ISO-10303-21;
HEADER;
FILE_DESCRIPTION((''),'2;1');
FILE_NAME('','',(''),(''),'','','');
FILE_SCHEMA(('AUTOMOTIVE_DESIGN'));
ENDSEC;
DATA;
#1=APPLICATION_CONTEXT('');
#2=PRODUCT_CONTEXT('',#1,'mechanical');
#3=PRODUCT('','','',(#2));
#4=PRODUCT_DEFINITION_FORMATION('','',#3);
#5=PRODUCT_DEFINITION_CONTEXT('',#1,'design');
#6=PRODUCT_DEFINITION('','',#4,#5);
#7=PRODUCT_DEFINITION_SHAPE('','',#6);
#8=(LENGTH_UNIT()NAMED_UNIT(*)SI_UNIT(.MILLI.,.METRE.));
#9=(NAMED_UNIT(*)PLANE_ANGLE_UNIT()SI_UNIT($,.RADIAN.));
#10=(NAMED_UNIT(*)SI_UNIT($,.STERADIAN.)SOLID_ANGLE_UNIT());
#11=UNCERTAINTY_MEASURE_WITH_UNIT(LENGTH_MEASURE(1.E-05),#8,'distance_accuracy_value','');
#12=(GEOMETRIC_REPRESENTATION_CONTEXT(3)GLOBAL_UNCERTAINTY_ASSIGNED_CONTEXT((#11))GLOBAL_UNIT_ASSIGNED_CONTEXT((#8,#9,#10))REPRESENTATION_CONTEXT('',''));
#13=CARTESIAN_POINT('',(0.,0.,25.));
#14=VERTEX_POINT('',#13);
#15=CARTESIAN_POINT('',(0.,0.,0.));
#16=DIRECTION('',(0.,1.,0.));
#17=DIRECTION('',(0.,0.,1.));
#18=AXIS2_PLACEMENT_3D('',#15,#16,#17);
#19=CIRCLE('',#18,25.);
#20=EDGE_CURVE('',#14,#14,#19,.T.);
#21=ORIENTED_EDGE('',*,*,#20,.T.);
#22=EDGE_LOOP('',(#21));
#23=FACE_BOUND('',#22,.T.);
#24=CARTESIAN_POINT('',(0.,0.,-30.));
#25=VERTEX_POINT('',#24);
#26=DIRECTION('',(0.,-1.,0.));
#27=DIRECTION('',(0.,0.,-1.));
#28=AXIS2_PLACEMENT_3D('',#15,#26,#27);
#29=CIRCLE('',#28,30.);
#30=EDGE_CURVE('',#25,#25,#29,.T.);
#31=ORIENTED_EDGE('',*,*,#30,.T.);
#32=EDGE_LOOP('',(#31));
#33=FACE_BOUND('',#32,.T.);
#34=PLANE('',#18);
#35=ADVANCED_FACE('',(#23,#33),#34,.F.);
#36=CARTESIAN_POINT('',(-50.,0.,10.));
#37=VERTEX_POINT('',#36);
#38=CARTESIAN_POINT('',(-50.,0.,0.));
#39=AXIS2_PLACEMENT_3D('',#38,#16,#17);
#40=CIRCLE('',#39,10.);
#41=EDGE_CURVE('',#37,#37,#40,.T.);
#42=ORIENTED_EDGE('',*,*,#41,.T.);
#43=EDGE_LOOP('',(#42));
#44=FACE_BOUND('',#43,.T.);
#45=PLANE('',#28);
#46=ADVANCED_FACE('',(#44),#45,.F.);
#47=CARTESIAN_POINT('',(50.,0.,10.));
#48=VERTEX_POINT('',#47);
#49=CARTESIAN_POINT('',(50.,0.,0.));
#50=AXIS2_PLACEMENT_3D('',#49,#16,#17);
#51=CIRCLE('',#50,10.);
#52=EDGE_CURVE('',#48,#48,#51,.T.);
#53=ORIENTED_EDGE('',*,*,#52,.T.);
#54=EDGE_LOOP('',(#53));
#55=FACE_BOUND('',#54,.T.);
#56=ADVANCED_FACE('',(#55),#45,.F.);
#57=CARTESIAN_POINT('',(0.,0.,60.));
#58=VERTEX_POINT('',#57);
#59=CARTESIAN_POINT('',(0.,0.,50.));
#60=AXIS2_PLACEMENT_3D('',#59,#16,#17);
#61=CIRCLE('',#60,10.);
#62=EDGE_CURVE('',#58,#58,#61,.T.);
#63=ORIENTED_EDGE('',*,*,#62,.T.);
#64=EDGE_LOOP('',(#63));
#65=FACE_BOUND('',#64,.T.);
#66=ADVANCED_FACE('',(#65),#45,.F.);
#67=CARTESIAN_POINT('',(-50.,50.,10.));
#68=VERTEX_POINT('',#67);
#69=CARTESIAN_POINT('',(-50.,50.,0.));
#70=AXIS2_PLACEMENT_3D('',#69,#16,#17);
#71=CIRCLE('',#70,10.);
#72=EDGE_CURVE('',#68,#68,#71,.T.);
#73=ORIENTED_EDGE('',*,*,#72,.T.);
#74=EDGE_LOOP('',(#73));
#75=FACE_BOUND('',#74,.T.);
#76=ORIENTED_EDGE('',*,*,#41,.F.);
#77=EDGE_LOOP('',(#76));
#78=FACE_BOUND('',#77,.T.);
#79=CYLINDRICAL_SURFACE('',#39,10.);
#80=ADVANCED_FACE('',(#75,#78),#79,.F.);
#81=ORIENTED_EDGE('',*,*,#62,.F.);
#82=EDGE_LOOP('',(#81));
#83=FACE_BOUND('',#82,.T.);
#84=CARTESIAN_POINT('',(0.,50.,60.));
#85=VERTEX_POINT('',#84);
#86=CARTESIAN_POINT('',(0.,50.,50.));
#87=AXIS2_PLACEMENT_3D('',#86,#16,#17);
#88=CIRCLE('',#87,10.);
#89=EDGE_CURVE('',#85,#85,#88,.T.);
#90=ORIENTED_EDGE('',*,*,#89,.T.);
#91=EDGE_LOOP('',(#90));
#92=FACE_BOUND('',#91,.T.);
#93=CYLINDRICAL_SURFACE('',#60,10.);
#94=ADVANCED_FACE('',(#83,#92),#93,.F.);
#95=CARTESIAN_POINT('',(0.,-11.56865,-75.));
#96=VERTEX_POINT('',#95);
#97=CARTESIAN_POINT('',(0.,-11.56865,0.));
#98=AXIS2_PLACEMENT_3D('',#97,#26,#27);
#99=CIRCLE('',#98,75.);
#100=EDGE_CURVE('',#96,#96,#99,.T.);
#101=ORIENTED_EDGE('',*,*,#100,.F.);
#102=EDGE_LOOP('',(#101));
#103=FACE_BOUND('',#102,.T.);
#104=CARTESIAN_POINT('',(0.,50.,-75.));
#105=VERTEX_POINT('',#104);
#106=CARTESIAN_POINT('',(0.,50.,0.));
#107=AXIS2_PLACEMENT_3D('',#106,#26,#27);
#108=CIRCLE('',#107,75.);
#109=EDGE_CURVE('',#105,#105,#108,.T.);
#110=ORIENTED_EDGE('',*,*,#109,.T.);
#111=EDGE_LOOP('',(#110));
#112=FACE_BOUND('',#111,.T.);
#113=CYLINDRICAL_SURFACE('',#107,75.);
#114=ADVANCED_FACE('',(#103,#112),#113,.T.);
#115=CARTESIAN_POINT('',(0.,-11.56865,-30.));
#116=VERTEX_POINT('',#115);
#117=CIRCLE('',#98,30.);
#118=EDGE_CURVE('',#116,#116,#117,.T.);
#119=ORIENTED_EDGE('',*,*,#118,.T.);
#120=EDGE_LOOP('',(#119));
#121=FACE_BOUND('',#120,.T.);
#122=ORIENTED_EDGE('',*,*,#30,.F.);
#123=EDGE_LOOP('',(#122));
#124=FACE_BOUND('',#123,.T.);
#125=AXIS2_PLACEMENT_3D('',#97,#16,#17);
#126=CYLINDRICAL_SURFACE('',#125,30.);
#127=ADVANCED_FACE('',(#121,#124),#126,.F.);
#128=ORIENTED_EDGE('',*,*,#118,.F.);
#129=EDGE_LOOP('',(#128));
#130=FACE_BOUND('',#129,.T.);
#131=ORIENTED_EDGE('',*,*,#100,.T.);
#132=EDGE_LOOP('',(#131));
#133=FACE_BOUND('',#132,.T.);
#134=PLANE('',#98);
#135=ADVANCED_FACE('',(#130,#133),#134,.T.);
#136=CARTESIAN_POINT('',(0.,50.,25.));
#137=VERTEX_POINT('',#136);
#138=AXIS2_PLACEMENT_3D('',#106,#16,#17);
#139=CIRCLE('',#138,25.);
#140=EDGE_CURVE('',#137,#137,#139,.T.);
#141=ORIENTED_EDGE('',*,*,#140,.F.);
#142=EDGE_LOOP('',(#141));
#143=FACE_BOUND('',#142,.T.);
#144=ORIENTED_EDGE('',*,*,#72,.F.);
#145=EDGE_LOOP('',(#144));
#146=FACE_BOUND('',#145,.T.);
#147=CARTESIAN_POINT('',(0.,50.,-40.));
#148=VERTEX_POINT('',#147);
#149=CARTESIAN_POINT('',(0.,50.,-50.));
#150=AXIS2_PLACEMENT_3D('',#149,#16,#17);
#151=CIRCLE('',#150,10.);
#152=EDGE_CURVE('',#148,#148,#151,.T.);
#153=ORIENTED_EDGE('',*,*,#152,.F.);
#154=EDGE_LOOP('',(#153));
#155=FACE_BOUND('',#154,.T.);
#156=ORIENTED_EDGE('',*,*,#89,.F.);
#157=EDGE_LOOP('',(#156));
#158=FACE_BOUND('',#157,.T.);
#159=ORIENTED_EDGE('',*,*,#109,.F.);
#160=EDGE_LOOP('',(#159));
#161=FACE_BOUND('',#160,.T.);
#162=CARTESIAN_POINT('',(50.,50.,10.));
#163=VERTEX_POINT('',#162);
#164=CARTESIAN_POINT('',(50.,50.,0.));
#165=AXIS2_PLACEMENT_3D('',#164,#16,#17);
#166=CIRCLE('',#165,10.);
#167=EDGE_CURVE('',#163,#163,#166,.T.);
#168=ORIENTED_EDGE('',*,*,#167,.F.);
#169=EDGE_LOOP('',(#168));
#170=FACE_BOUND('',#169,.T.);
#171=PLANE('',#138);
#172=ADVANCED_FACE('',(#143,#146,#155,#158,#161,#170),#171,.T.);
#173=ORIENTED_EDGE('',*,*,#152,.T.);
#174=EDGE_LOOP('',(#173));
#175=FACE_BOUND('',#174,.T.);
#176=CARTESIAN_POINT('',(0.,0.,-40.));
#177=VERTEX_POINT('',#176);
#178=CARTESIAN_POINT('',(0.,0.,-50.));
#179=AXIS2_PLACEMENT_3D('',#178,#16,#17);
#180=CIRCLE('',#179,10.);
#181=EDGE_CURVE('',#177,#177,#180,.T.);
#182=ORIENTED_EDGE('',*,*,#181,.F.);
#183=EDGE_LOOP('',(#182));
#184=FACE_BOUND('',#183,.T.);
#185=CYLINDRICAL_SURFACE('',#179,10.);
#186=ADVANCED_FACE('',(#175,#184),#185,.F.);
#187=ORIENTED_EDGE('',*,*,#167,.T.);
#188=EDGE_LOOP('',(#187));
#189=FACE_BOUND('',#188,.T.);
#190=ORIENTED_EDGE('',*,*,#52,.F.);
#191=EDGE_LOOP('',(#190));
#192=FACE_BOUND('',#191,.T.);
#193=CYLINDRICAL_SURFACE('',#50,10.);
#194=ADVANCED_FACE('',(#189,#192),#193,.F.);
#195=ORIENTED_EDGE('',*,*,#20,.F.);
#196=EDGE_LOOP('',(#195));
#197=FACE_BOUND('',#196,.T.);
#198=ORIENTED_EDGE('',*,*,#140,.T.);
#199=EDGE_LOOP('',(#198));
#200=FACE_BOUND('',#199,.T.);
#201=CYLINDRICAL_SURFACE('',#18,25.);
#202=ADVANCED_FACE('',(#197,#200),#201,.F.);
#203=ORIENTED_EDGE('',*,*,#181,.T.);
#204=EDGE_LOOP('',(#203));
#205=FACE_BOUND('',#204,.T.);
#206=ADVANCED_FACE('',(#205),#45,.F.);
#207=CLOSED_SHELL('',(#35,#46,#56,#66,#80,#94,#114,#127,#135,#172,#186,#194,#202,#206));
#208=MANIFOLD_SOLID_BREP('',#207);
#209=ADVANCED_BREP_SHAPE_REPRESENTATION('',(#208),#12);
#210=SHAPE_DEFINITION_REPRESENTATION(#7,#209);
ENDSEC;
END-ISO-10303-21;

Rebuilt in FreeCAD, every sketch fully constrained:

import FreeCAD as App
import Part
import Sketcher

doc = App.newDocument("Part")
body = doc.addObject("PartDesign::Body", "Body")

sketch1 = doc.addObject("Sketcher::SketchObject", "Sketch")
body.addObject(sketch1)
sketch1.AttachmentSupport = (doc.XZ_Plane, [""])
sketch1.MapMode = "FlatFace"
sketch1.addGeometry(Part.Circle(App.Vector(0, 0, 0), App.Vector(0, 0, 1), 30), False)
sketch1.addConstraint([
    Sketcher.Constraint("Coincident", 0, 3, -1, 1),
    Sketcher.Constraint("Diameter", 0, 60.0),
])
pad1 = doc.addObject("PartDesign::Pad", "Pad")
body.addObject(pad1)
pad1.Profile = sketch1
pad1.Length = 50
pad1.Reversed = True

sketch2 = doc.addObject("Sketcher::SketchObject", "Sketch001")
body.addObject(sketch2)
sketch2.AttachmentSupport = (doc.XZ_Plane, [""])
sketch2.MapMode = "FlatFace"
sketch2.addGeometry(Part.Circle(App.Vector(0, 0, 0), App.Vector(0, 0, 1), 75), False)
sketch2.addConstraint([
    Sketcher.Constraint("Coincident", 0, 3, -1, 1),
    Sketcher.Constraint("Diameter", 0, 150.0),
])
pad2 = doc.addObject("PartDesign::Pad", "Pad001")
body.addObject(pad2)
pad2.Profile = sketch2
pad2.Length = 50
pad2.Reversed = True

sketch3 = doc.addObject("Sketcher::SketchObject", "Sketch002")
body.addObject(sketch3)
sketch3.AttachmentSupport = (doc.XZ_Plane, [""])
sketch3.MapMode = "FlatFace"
sketch3.AttachmentOffset = App.Placement(App.Vector(0, 0, -50), App.Rotation())
sketch3.addGeometry([
    Part.Circle(App.Vector(0, 0, 0), App.Vector(0, 0, 1), 25),
    Part.Circle(App.Vector(0, 50, 0), App.Vector(0, 0, 1), 10),
    Part.Circle(App.Vector(50, 0, 0), App.Vector(0, 0, 1), 10),
    Part.Circle(App.Vector(0, -50, 0), App.Vector(0, 0, 1), 10),
    Part.Circle(App.Vector(-50, 0, 0), App.Vector(0, 0, 1), 10),
], False)
sketch3.addConstraint([
    Sketcher.Constraint("Coincident", 0, 3, -1, 1),
    Sketcher.Constraint("Equal", 1, 2),
    Sketcher.Constraint("Equal", 2, 3),
    Sketcher.Constraint("Equal", 3, 4),
    Sketcher.Constraint("Symmetric", 1, 3, 3, 3, -1, 1),
    Sketcher.Constraint("Symmetric", 2, 3, 4, 3, -1, 1),
    Sketcher.Constraint("PointOnObject", 1, 3, -2),
    Sketcher.Constraint("PointOnObject", 2, 3, -1),
    Sketcher.Constraint("Diameter", 0, 50.0),
    Sketcher.Constraint("Diameter", 1, 20.0),
    Sketcher.Constraint("DistanceY", -1, 1, 1, 3, 50.0),
    Sketcher.Constraint("DistanceX", -1, 1, 2, 3, 50.0),
])
pocket1 = doc.addObject("PartDesign::Pocket", "Pocket")
body.addObject(pocket1)
pocket1.Profile = sketch3
pocket1.Length = 50
pocket1.Reversed = True

sketch4 = doc.addObject("Sketcher::SketchObject", "Sketch003")
body.addObject(sketch4)
sketch4.AttachmentSupport = (doc.XZ_Plane, [""])
sketch4.MapMode = "FlatFace"
sketch4.AttachmentOffset = App.Placement(App.Vector(0, 0, 11.56865), App.Rotation())
sketch4.addGeometry([
    Part.Circle(App.Vector(0, 0, 0), App.Vector(0, 0, 1), 75),
    Part.Circle(App.Vector(0, 0, 0), App.Vector(0, 0, 1), 30),
], False)
sketch4.addConstraint([
    Sketcher.Constraint("Coincident", 0, 3, -1, 1),
    Sketcher.Constraint("Coincident", 1, 3, -1, 1),
    Sketcher.Constraint("Diameter", 0, 150.0),
    Sketcher.Constraint("Diameter", 1, 60.0),
])
pad3 = doc.addObject("PartDesign::Pad", "Pad002")
body.addObject(pad3)
pad3.Profile = sketch4
pad3.Length = 11.56865
pad3.Reversed = True

doc.recompute()
